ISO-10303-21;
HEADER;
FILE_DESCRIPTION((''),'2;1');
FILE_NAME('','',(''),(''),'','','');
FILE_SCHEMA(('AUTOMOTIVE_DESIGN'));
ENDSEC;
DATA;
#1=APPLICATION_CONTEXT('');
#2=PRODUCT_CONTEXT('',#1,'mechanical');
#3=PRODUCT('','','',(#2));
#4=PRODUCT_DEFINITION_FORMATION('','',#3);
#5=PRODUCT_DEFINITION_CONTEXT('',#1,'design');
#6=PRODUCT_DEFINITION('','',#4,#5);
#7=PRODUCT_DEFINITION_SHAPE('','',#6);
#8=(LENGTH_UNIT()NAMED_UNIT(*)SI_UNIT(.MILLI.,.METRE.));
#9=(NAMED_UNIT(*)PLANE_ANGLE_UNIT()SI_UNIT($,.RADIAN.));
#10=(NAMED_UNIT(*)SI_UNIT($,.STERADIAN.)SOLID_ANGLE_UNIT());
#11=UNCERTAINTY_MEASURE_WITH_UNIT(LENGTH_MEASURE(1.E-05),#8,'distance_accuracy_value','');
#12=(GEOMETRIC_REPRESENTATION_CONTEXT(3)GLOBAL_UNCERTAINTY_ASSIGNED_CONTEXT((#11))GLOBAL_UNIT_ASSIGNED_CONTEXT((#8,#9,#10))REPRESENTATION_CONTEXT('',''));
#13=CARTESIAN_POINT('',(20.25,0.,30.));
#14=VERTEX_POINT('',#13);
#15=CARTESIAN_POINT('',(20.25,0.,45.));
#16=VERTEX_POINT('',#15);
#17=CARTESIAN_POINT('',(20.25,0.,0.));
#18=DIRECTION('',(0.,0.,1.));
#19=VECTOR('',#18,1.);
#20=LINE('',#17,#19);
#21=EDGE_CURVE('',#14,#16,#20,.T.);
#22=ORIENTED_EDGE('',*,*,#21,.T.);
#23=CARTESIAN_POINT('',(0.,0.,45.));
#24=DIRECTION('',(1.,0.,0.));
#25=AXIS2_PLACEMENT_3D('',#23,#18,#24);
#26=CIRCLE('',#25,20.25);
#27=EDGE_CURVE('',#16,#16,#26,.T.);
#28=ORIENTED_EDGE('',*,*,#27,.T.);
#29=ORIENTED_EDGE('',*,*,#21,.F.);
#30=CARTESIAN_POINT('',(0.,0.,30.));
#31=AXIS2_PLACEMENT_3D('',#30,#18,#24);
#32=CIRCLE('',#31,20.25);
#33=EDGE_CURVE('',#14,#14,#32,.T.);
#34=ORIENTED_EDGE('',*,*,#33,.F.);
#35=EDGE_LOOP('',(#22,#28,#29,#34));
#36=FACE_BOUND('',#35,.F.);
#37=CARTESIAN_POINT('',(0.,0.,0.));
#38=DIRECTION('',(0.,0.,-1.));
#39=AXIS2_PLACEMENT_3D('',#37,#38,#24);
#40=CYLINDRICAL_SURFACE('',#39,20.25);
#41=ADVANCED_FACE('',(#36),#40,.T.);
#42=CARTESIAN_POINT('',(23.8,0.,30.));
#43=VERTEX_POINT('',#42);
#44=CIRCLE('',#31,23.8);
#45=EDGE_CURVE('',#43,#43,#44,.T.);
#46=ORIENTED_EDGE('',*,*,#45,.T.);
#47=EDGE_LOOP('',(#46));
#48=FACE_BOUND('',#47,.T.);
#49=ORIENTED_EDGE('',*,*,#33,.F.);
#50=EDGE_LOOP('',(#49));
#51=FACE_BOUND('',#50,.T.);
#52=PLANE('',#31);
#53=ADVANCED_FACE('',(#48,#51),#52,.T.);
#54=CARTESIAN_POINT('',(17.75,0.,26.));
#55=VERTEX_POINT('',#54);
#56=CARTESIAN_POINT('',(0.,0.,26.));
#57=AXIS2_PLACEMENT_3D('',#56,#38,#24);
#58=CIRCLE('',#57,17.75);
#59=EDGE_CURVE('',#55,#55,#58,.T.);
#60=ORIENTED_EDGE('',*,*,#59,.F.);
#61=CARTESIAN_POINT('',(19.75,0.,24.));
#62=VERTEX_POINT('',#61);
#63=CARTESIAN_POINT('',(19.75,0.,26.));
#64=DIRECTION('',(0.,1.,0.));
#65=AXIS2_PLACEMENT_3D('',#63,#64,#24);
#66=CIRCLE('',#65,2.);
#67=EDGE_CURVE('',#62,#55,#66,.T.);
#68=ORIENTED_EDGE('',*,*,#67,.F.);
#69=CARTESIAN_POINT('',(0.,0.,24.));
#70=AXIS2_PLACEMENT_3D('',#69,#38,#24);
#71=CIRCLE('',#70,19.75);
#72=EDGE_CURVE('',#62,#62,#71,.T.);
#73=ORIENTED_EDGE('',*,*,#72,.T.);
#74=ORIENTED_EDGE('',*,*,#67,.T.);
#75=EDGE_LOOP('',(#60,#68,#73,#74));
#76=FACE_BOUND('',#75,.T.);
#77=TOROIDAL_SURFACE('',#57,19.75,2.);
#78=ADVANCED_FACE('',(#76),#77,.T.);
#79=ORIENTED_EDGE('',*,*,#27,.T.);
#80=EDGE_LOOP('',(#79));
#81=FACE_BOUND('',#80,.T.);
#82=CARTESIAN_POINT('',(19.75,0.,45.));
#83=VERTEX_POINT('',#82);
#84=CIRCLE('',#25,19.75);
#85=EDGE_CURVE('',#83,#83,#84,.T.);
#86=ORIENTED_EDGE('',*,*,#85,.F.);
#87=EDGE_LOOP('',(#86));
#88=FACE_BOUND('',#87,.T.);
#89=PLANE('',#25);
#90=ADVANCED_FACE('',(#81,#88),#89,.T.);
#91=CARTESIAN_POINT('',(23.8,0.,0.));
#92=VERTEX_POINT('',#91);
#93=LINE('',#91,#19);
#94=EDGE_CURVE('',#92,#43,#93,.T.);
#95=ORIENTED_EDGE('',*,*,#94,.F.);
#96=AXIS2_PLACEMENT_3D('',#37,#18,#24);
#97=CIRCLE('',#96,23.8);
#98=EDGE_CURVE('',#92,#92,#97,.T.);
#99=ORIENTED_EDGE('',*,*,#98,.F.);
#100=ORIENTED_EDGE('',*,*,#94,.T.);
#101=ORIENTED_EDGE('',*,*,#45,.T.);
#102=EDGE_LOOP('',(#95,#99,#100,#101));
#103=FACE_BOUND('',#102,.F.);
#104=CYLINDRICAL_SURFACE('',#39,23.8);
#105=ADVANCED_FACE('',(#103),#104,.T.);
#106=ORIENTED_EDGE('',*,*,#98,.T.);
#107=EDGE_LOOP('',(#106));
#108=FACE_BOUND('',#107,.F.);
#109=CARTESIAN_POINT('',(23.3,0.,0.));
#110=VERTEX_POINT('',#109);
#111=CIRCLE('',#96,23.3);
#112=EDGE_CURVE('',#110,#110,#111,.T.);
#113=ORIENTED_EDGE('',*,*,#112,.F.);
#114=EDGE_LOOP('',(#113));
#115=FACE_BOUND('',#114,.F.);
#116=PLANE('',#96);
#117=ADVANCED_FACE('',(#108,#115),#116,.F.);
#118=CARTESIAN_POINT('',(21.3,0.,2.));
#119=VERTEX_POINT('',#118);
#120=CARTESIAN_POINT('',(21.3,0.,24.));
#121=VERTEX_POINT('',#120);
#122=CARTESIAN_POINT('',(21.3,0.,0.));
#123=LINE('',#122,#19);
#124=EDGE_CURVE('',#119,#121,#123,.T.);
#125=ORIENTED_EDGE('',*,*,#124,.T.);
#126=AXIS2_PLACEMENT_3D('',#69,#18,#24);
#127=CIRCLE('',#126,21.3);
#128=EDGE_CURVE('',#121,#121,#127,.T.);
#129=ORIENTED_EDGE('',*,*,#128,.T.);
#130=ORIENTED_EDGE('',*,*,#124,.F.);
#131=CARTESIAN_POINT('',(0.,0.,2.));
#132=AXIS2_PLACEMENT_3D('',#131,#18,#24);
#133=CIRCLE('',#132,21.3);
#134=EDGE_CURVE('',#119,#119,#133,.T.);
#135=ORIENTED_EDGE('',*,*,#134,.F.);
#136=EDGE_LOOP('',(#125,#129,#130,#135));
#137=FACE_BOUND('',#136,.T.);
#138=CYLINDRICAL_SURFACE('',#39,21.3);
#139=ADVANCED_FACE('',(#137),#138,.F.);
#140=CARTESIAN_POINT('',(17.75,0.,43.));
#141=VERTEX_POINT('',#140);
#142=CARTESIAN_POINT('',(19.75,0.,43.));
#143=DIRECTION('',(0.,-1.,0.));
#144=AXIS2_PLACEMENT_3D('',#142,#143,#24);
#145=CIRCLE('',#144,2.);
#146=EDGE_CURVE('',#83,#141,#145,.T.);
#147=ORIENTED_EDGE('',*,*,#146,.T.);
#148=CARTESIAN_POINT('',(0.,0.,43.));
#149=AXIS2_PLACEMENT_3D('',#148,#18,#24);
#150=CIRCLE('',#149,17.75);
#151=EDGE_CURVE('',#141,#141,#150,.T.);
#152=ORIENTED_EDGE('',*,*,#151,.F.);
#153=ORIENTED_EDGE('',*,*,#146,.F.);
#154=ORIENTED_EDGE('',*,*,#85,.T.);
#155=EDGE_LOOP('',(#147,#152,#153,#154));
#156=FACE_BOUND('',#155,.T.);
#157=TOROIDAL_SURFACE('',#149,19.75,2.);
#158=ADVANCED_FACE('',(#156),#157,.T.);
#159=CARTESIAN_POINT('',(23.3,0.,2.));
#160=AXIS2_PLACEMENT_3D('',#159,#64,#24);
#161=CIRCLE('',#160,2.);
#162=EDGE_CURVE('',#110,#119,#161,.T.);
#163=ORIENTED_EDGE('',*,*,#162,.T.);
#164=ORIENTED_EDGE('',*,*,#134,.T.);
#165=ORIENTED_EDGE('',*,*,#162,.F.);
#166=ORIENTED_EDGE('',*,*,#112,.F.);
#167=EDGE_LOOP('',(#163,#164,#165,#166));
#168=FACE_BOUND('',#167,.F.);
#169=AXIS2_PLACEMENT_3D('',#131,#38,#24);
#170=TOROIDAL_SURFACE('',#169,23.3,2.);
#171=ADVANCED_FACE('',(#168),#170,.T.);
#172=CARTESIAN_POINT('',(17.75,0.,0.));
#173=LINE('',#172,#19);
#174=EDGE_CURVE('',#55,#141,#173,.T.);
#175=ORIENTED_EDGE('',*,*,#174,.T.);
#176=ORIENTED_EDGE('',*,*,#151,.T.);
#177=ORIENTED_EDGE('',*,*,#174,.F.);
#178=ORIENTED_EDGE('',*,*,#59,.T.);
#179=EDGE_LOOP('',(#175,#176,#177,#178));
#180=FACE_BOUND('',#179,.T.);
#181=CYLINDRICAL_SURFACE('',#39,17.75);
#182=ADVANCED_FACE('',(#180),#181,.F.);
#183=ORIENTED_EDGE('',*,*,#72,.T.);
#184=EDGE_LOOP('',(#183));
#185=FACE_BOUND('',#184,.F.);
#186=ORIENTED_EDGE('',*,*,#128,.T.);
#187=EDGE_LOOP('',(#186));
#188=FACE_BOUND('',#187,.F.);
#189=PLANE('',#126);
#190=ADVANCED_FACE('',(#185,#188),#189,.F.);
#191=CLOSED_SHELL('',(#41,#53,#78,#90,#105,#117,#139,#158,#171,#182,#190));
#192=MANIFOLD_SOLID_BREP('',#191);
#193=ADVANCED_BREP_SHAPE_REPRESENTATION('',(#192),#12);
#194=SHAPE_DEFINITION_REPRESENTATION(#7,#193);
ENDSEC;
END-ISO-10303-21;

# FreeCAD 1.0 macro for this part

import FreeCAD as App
import Part
import Sketcher

V = App.Vector
Q = App.Units.Quantity


def edges_at(feature, points):
    """Names of the edges that pass closest to the given points."""
    edges = feature.Shape.Edges
    near = lambda p: min(range(len(edges)), key=lambda i: edges[i].distToShape(Part.Vertex(*p))[0])
    return sorted({f"Edge{near(p) + 1}" for p in points})

doc = App.newDocument("Part")
params = doc.addObject("Spreadsheet::Sheet", "Params")
for row, (alias, value) in enumerate([
    ("sketch1_diameter", "40.5 mm"),
    ("sketch1_diameter2", "35.5 mm"),
    ("pad1_length", "45 mm"),
    ("sketch2_diameter", "47.6 mm"),
    ("sketch2_diameter2", "40.5 mm"),
    ("pad2_length", "30 mm"),
    ("sketch3_diameter", "42.6 mm"),
    ("pocket1_length", "24 mm"),
    ("fillet_radius", "2 mm"),
], start=1):
    params.set(f"A{row}", alias)
    params.set(f"B{row}", "=" + value)
    params.setAlias(f"B{row}", alias)

body = doc.addObject("PartDesign::Body", "Body")

sketch1 = body.newObject("Sketcher::SketchObject", "Sketch")
sketch1.AttachmentSupport = (doc.getObject("XY_Plane"), [""])
sketch1.MapMode = "FlatFace"
sketch1.addGeometry([
    Part.Circle(V(0, 0, 0), V(0, 0, 1), 20),
    Part.Circle(V(0, 0, 0), V(0, 0, 1), 18),
], False)
sketch1.addConstraint([
    Sketcher.Constraint("Coincident", 0, 3, -1, 1),
    Sketcher.Constraint("Coincident", 1, 3, -1, 1),
    Sketcher.Constraint("Diameter", 0, Q("40.5 mm")),
    Sketcher.Constraint("Diameter", 1, Q("35.5 mm")),
])
sketch1.setExpression("Constraints[2]", "Params.sketch1_diameter")
sketch1.setExpression("Constraints[3]", "Params.sketch1_diameter2")
pad1 = body.newObject("PartDesign::Pad", "Pad")
pad1.Profile = sketch1
pad1.setExpression("Length", "Params.pad1_length")

sketch2 = body.newObject("Sketcher::SketchObject", "Sketch001")
sketch2.AttachmentSupport = (doc.getObject("XY_Plane"), [""])
sketch2.MapMode = "FlatFace"
sketch2.addGeometry([
    Part.Circle(V(0, 0, 0), V(0, 0, 1), 24),
    Part.Circle(V(0, 0, 0), V(0, 0, 1), 20),
], False)
sketch2.addConstraint([
    Sketcher.Constraint("Coincident", 0, 3, -1, 1),
    Sketcher.Constraint("Coincident", 1, 3, -1, 1),
    Sketcher.Constraint("Diameter", 0, Q("47.6 mm")),
    Sketcher.Constraint("Diameter", 1, Q("40.5 mm")),
])
sketch2.setExpression("Constraints[2]", "Params.sketch2_diameter")
sketch2.setExpression("Constraints[3]", "Params.sketch2_diameter2")
pad2 = body.newObject("PartDesign::Pad", "Pad001")
pad2.Profile = sketch2
pad2.setExpression("Length", "Params.pad2_length")

sketch3 = body.newObject("Sketcher::SketchObject", "Sketch002")
sketch3.AttachmentSupport = (doc.getObject("XY_Plane"), [""])
sketch3.MapMode = "FlatFace"
sketch3.addGeometry(Part.Circle(V(0, 0, 0), V(0, 0, 1), 21), False)
sketch3.addConstraint([
    Sketcher.Constraint("Coincident", 0, 3, -1, 1),
    Sketcher.Constraint("Diameter", 0, Q("42.6 mm")),
])
sketch3.setExpression("Constraints[1]", "Params.sketch3_diameter")
pocket1 = body.newObject("PartDesign::Pocket", "Pocket")
pocket1.Profile = sketch3
pocket1.setExpression("Length", "Params.pocket1_length")
pocket1.Reversed = True
doc.recompute()

fillet = body.newObject("PartDesign::Fillet", "Fillet")
fillet.Base = (pocket1, edges_at(pocket1, [(-17.75, 0, 24), (-21.3, 0, 0), (-17.75, 0, 45)]))
fillet.setExpression("Radius", "Params.fillet_radius")

doc.recompute()
